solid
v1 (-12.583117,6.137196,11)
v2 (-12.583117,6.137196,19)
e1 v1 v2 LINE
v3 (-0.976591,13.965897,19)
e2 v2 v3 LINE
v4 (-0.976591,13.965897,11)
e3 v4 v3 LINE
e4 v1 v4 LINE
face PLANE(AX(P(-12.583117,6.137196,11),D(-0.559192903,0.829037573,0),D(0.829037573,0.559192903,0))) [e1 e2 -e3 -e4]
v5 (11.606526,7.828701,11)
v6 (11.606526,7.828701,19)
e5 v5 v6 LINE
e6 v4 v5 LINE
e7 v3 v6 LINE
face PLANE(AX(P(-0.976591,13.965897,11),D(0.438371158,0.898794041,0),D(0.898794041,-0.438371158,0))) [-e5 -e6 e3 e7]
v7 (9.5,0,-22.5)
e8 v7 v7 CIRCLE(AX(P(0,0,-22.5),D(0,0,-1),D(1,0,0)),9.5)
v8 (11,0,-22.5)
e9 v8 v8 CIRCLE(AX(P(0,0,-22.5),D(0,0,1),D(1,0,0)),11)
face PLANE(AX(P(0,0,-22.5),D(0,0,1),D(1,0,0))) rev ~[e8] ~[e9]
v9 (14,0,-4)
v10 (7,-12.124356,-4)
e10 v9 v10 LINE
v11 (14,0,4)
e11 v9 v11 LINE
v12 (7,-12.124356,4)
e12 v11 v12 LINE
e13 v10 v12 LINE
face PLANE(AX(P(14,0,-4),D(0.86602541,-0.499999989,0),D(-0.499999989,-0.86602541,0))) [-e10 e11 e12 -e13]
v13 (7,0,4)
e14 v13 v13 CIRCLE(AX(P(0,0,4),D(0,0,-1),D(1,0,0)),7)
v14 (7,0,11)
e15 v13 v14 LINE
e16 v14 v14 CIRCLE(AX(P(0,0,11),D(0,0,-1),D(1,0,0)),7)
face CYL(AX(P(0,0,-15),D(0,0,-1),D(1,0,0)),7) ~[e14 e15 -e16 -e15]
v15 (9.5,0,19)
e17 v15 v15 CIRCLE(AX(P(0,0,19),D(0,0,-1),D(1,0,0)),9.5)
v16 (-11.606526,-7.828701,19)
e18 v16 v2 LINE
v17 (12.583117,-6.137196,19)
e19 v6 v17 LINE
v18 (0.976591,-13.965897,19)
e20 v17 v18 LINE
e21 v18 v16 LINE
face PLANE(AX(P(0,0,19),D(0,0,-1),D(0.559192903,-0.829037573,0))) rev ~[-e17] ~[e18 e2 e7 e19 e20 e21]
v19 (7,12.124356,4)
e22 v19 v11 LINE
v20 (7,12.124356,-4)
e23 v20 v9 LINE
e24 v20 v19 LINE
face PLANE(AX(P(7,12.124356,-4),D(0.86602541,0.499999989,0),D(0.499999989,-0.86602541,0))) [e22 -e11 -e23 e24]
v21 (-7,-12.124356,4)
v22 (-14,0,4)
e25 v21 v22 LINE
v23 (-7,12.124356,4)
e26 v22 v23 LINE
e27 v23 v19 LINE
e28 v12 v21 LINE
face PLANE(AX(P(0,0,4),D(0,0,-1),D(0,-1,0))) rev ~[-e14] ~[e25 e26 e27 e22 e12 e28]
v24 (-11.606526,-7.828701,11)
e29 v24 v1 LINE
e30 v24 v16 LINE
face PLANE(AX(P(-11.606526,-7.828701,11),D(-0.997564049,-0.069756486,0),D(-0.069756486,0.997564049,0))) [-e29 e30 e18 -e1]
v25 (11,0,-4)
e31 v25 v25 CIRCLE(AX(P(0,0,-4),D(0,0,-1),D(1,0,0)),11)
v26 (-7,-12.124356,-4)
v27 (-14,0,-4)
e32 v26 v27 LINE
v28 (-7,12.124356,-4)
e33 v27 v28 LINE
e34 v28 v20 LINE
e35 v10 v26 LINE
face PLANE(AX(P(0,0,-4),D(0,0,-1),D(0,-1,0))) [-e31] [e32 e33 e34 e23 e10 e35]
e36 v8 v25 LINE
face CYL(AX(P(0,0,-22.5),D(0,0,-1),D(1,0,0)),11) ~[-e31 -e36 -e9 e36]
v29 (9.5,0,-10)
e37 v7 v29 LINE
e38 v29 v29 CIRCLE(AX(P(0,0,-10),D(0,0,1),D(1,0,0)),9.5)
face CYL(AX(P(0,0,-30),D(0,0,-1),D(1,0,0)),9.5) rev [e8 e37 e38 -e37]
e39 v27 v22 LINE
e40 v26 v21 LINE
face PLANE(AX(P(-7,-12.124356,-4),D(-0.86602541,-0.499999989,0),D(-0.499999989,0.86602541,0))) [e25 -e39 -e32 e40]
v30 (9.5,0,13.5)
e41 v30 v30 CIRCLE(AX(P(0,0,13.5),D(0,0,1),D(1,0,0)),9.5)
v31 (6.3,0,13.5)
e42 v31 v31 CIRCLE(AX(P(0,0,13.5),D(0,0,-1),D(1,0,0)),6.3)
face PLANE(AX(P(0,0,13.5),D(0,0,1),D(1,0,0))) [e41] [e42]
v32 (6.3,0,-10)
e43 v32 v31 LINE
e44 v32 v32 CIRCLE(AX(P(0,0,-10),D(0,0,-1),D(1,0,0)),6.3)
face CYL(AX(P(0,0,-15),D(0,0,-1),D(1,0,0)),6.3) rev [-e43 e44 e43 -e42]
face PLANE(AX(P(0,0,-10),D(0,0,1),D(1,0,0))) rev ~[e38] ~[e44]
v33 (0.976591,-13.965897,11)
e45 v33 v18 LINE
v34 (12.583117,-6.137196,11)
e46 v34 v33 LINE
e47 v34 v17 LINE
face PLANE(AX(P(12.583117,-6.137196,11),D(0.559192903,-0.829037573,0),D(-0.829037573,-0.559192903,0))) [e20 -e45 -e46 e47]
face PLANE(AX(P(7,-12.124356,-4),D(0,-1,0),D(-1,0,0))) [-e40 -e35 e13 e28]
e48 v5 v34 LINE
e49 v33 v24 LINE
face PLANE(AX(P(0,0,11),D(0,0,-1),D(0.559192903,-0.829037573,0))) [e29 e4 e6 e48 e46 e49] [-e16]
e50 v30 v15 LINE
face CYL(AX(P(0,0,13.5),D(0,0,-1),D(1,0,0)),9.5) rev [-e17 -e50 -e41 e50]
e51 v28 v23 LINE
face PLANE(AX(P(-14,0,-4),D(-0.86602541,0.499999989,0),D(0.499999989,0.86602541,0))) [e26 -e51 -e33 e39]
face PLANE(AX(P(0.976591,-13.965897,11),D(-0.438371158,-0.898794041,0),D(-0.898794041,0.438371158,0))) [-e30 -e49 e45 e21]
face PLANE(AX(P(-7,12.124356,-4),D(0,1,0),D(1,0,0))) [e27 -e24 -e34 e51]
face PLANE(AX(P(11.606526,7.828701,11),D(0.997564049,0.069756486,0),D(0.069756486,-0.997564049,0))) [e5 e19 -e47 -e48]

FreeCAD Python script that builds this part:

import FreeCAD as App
import Part
import Sketcher
Q = App.Units.Quantity

doc = App.newDocument("Part")
body = doc.addObject("PartDesign::Body", "Body")

# Sketch on XY plane
sketch1 = body.newObject("Sketcher::SketchObject", "Sketch")
sketch1.AttachmentSupport = (doc.getObject("XY_Plane"), [""])
sketch1.MapMode = "FlatFace"
sketch1.AttachmentOffset = App.Placement(App.Vector(0, 0, -15), App.Rotation())
sketch1.addGeometry(Part.Circle(App.Vector(0, 0, 0), App.Vector(0, 0, 1), 6.3), False)
sketch1.addConstraint(Sketcher.Constraint("Coincident", 0, 3, -1, 1))
sketch1.addConstraint(Sketcher.Constraint("Diameter", 0, Q("12.6 mm")))
pad1 = body.newObject("PartDesign::Pad", "Pad")
pad1.Profile = sketch1
pad1.Length = 50
body2 = doc.addObject("PartDesign::Body", "Body001")

# Sketch on XY plane
sketch2 = body2.newObject("Sketcher::SketchObject", "Sketch001")
sketch2.AttachmentSupport = (doc.getObject("XY_Plane001"), [""])
sketch2.MapMode = "FlatFace"
sketch2.AttachmentOffset = App.Placement(App.Vector(0, 0, 13.5), App.Rotation())
sketch2.addGeometry(Part.Circle(App.Vector(0, 0, 0), App.Vector(0, 0, 1), 9.5), False)
sketch2.addConstraint(Sketcher.Constraint("Coincident", 0, 3, -1, 1))
sketch2.addConstraint(Sketcher.Constraint("Diameter", 0, Q("19 mm")))
pad2 = body2.newObject("PartDesign::Pad", "Pad001")
pad2.Profile = sketch2
pad2.Length = 13
body3 = doc.addObject("PartDesign::Body", "Body002")

# Sketch on XY plane
sketch3 = body3.newObject("Sketcher::SketchObject", "Sketch002")
sketch3.AttachmentSupport = (doc.getObject("XY_Plane002"), [""])
sketch3.MapMode = "FlatFace"
sketch3.AttachmentOffset = App.Placement(App.Vector(0, 0, -30), App.Rotation())
sketch3.addGeometry(Part.Circle(App.Vector(0, 0, 0), App.Vector(0, 0, 1), 9.5), False)
sketch3.addConstraint(Sketcher.Constraint("Coincident", 0, 3, -1, 1))
sketch3.addConstraint(Sketcher.Constraint("Diameter", 0, Q("19 mm")))
pad3 = body3.newObject("PartDesign::Pad", "Pad002")
pad3.Profile = sketch3
pad3.Length = 20
doc.recompute()

boolean = body3.newObject("PartDesign::Boolean", "Boolean")
boolean.Type = "Fuse"
boolean.addObjects([body])
doc.recompute()

boolean2 = body3.newObject("PartDesign::Boolean", "Boolean001")
boolean2.Type = "Fuse"
boolean2.addObjects([body2])
body4 = doc.addObject("PartDesign::Body", "Body003")

# Sketch on XY plane
sketch4 = body4.newObject("Sketcher::SketchObject", "Sketch003")
sketch4.AttachmentSupport = (doc.getObject("XY_Plane003"), [""])
sketch4.MapMode = "FlatFace"
sketch4.AttachmentOffset = App.Placement(App.Vector(0, 0, -15), App.Rotation())
sketch4.addGeometry(Part.Circle(App.Vector(0, 0, 0), App.Vector(0, 0, 1), 7), False)
sketch4.addConstraint(Sketcher.Constraint("Coincident", 0, 3, -1, 1))
sketch4.addConstraint(Sketcher.Constraint("Diameter", 0, Q("14 mm")))
pad4 = body4.newObject("PartDesign::Pad", "Pad003")
pad4.Profile = sketch4
pad4.Length = 30
body5 = doc.addObject("PartDesign::Body", "Body004")

# Sketch on XY plane
sketch5 = body5.newObject("Sketcher::SketchObject", "Sketch004")
sketch5.AttachmentSupport = (doc.getObject("XY_Plane004"), [""])
sketch5.MapMode = "FlatFace"
sketch5.addGeometry(Part.LineSegment(App.Vector(7, 12.124356, 0), App.Vector(14, 0, 0)), False)
sketch5.addGeometry(Part.LineSegment(App.Vector(14, 0, 0), App.Vector(7, -12.124356, 0)), False)
sketch5.addGeometry(Part.LineSegment(App.Vector(7, -12.124356, 0), App.Vector(-7, -12.124356, 0)), False)
sketch5.addGeometry(Part.LineSegment(App.Vector(-7, -12.124356, 0), App.Vector(-14, 0, 0)), False)
sketch5.addGeometry(Part.LineSegment(App.Vector(-14, 0, 0), App.Vector(-7, 12.124356, 0)), False)
sketch5.addGeometry(Part.LineSegment(App.Vector(-7, 12.124356, 0), App.Vector(7, 12.124356, 0)), False)
sketch5.addConstraint(Sketcher.Constraint("Coincident", 0, 2, 1, 1))
sketch5.addConstraint(Sketcher.Constraint("Coincident", 1, 2, 2, 1))
sketch5.addConstraint(Sketcher.Constraint("Coincident", 2, 2, 3, 1))
sketch5.addConstraint(Sketcher.Constraint("Coincident", 3, 2, 4, 1))
sketch5.addConstraint(Sketcher.Constraint("Coincident", 4, 2, 5, 1))
sketch5.addConstraint(Sketcher.Constraint("Coincident", 5, 2, 0, 1))
sketch5.addConstraint(Sketcher.Constraint("Horizontal", 2))
sketch5.addConstraint(Sketcher.Constraint("Horizontal", 5))
sketch5.addConstraint(Sketcher.Constraint("Symmetric", 0, 2, 3, 2, -1, 1))
sketch5.addConstraint(Sketcher.Constraint("Symmetric", 1, 2, 4, 2, -1, 1))
sketch5.addConstraint(Sketcher.Constraint("PointOnObject", 0, 2, -1))
sketch5.addConstraint(Sketcher.Constraint("Parallel", 0, 3))
sketch5.addConstraint(Sketcher.Constraint("Vertical", 2, 2, 4, 2))
sketch5.addConstraint(Sketcher.Constraint("DistanceX", 2, 2, 2, 1, Q("14 mm")))
sketch5.addConstraint(Sketcher.Constraint("Angle", 0, Q("-60.000001 deg")))
sketch5.addConstraint(Sketcher.Constraint("Distance", 0, Q("14 mm")))
pad5 = body5.newObject("PartDesign::Pad", "Pad004")
pad5.Profile = sketch5
pad5.Length = 8
body6 = doc.addObject("PartDesign::Body", "Body005")
doc.recompute()

body5.Placement = App.Placement(App.Vector(0, 0, -4), App.Rotation(App.Vector(0, 0, 1), 0))
boolean3 = body6.newObject("PartDesign::Boolean", "Boolean002")
boolean3.Type = "Fuse"
boolean3.addObjects([body5])
body7 = doc.addObject("PartDesign::Body", "Body006")

# Sketch on XY plane
sketch6 = body7.newObject("Sketcher::SketchObject", "Sketch005")
sketch6.AttachmentSupport = (doc.getObject("XY_Plane006"), [""])
sketch6.MapMode = "FlatFace"
sketch6.addGeometry(Part.LineSegment(App.Vector(7, 12.124356, 0), App.Vector(14, 0, 0)), False)
sketch6.addGeometry(Part.LineSegment(App.Vector(14, 0, 0), App.Vector(7, -12.124356, 0)), False)
sketch6.addGeometry(Part.LineSegment(App.Vector(7, -12.124356, 0), App.Vector(-7, -12.124356, 0)), False)
sketch6.addGeometry(Part.LineSegment(App.Vector(-7, -12.124356, 0), App.Vector(-14, 0, 0)), False)
sketch6.addGeometry(Part.LineSegment(App.Vector(-14, 0, 0), App.Vector(-7, 12.124356, 0)), False)
sketch6.addGeometry(Part.LineSegment(App.Vector(-7, 12.124356, 0), App.Vector(7, 12.124356, 0)), False)
sketch6.addConstraint(Sketcher.Constraint("Coincident", 0, 2, 1, 1))
sketch6.addConstraint(Sketcher.Constraint("Coincident", 1, 2, 2, 1))
sketch6.addConstraint(Sketcher.Constraint("Coincident", 2, 2, 3, 1))
sketch6.addConstraint(Sketcher.Constraint("Coincident", 3, 2, 4, 1))
sketch6.addConstraint(Sketcher.Constraint("Coincident", 4, 2, 5, 1))
sketch6.addConstraint(Sketcher.Constraint("Coincident", 5, 2, 0, 1))
sketch6.addConstraint(Sketcher.Constraint("Horizontal", 2))
sketch6.addConstraint(Sketcher.Constraint("Horizontal", 5))
sketch6.addConstraint(Sketcher.Constraint("Symmetric", 0, 2, 3, 2, -1, 1))
sketch6.addConstraint(Sketcher.Constraint("Symmetric", 1, 2, 4, 2, -1, 1))
sketch6.addConstraint(Sketcher.Constraint("PointOnObject", 0, 2, -1))
sketch6.addConstraint(Sketcher.Constraint("Parallel", 0, 3))
sketch6.addConstraint(Sketcher.Constraint("Vertical", 2, 2, 4, 2))
sketch6.addConstraint(Sketcher.Constraint("DistanceX", 2, 2, 2, 1, Q("14 mm")))
sketch6.addConstraint(Sketcher.Constraint("Angle", 0, Q("-60.000001 deg")))
sketch6.addConstraint(Sketcher.Constraint("Distance", 0, Q("14 mm")))
pad6 = body7.newObject("PartDesign::Pad", "Pad005")
pad6.Profile = sketch6
pad6.Length = 8
body8 = doc.addObject("PartDesign::Body", "Body007")
doc.recompute()

body7.Placement = App.Placement(App.Vector(0, 0, 11), App.Rotation(App.Vector(0, 0, 1), 34))
boolean4 = body8.newObject("PartDesign::Boolean", "Boolean003")
boolean4.Type = "Fuse"
boolean4.addObjects([body7])
body9 = doc.addObject("PartDesign::Body", "Body008")

# Sketch on XY plane
sketch7 = body9.newObject("Sketcher::SketchObject", "Sketch006")
sketch7.AttachmentSupport = (doc.getObject("XY_Plane008"), [""])
sketch7.MapMode = "FlatFace"
sketch7.AttachmentOffset = App.Placement(App.Vector(0, 0, -22.5), App.Rotation())
sketch7.addGeometry(Part.Circle(App.Vector(0, 0, 0), App.Vector(0, 0, 1), 11), False)
sketch7.addConstraint(Sketcher.Constraint("Coincident", 0, 3, -1, 1))
sketch7.addConstraint(Sketcher.Constraint("Diameter", 0, Q("22 mm")))
pad7 = body9.newObject("PartDesign::Pad", "Pad006")
pad7.Profile = sketch7
pad7.Length = 25
doc.recompute()

boolean5 = body9.newObject("PartDesign::Boolean", "Boolean004")
boolean5.Type = "Fuse"
boolean5.addObjects([body4])
doc.recompute()

boolean6 = body9.newObject("PartDesign::Boolean", "Boolean005")
boolean6.Type = "Fuse"
boolean6.addObjects([body6])
doc.recompute()

boolean7 = body9.newObject("PartDesign::Boolean", "Boolean006")
boolean7.Type = "Fuse"
boolean7.addObjects([body8])
doc.recompute()

boolean8 = body9.newObject("PartDesign::Boolean", "Boolean007")
boolean8.Type = "Cut"
boolean8.addObjects([body3])
body10 = doc.addObject("PartDesign::Body", "Body009")

# Sketch on XY plane
sketch8 = body10.newObject("Sketcher::SketchObject", "Sketch007")
sketch8.AttachmentSupport = (doc.getObject("XY_Plane009"), [""])
sketch8.MapMode = "FlatFace"
sketch8.AttachmentOffset = App.Placement(App.Vector(0, 0, -15), App.Rotation())
sketch8.addGeometry(Part.Circle(App.Vector(0, 0, 0), App.Vector(0, 0, 1), 6.3), False)
sketch8.addConstraint(Sketcher.Constraint("Coincident", 0, 3, -1, 1))
sketch8.addConstraint(Sketcher.Constraint("Diameter", 0, Q("12.6 mm")))
pad8 = body10.newObject("PartDesign::Pad", "Pad007")
pad8.Profile = sketch8
pad8.Length = 50
body11 = doc.addObject("PartDesign::Body", "Body010")

# Sketch on XY plane
sketch9 = body11.newObject("Sketcher::SketchObject", "Sketch008")
sketch9.AttachmentSupport = (doc.getObject("XY_Plane010"), [""])
sketch9.MapMode = "FlatFace"
sketch9.AttachmentOffset = App.Placement(App.Vector(0, 0, 13.5), App.Rotation())
sketch9.addGeometry(Part.Circle(App.Vector(0, 0, 0), App.Vector(0, 0, 1), 9.5), False)
sketch9.addConstraint(Sketcher.Constraint("Coincident", 0, 3, -1, 1))
sketch9.addConstraint(Sketcher.Constraint("Diameter", 0, Q("19 mm")))
pad9 = body11.newObject("PartDesign::Pad", "Pad008")
pad9.Profile = sketch9
pad9.Length = 13
body12 = doc.addObject("PartDesign::Body", "Body011")

# Sketch on XY plane
sketch10 = body12.newObject("Sketcher::SketchObject", "Sketch009")
sketch10.AttachmentSupport = (doc.getObject("XY_Plane011"), [""])
sketch10.MapMode = "FlatFace"
sketch10.AttachmentOffset = App.Placement(App.Vector(0, 0, -30), App.Rotation())
sketch10.addGeometry(Part.Circle(App.Vector(0, 0, 0), App.Vector(0, 0, 1), 9.5), False)
sketch10.addConstraint(Sketcher.Constraint("Coincident", 0, 3, -1, 1))
sketch10.addConstraint(Sketcher.Constraint("Diameter", 0, Q("19 mm")))
pad10 = body12.newObject("PartDesign::Pad", "Pad009")
pad10.Profile = sketch10
pad10.Length = 20
doc.recompute()

boolean9 = body12.newObject("PartDesign::Boolean", "Boolean008")
boolean9.Type = "Fuse"
boolean9.addObjects([body10])
doc.recompute()

boolean10 = body12.newObject("PartDesign::Boolean", "Boolean009")
boolean10.Type = "Fuse"
boolean10.addObjects([body11])
body13 = doc.addObject("PartDesign::Body", "Body012")

# Sketch on XY plane
sketch11 = body13.newObject("Sketcher::SketchObject", "Sketch010")
sketch11.AttachmentSupport = (doc.getObject("XY_Plane012"), [""])
sketch11.MapMode = "FlatFace"
sketch11.AttachmentOffset = App.Placement(App.Vector(0, 0, -15), App.Rotation())
sketch11.addGeometry(Part.Circle(App.Vector(0, 0, 0), App.Vector(0, 0, 1), 7), False)
sketch11.addConstraint(Sketcher.Constraint("Coincident", 0, 3, -1, 1))
sketch11.addConstraint(Sketcher.Constraint("Diameter", 0, Q("14 mm")))
pad11 = body13.newObject("PartDesign::Pad", "Pad010")
pad11.Profile = sketch11
pad11.Length = 30
body14 = doc.addObject("PartDesign::Body", "Body013")

# Sketch on XY plane
sketch12 = body14.newObject("Sketcher::SketchObject", "Sketch011")
sketch12.AttachmentSupport = (doc.getObject("XY_Plane013"), [""])
sketch12.MapMode = "FlatFace"
sketch12.addGeometry(Part.LineSegment(App.Vector(7, 12.124356, 0), App.Vector(14, 0, 0)), False)
sketch12.addGeometry(Part.LineSegment(App.Vector(14, 0, 0), App.Vector(7, -12.124356, 0)), False)
sketch12.addGeometry(Part.LineSegment(App.Vector(7, -12.124356, 0), App.Vector(-7, -12.124356, 0)), False)
sketch12.addGeometry(Part.LineSegment(App.Vector(-7, -12.124356, 0), App.Vector(-14, 0, 0)), False)
sketch12.addGeometry(Part.LineSegment(App.Vector(-14, 0, 0), App.Vector(-7, 12.124356, 0)), False)
sketch12.addGeometry(Part.LineSegment(App.Vector(-7, 12.124356, 0), App.Vector(7, 12.124356, 0)), False)
sketch12.addConstraint(Sketcher.Constraint("Coincident", 0, 2, 1, 1))
sketch12.addConstraint(Sketcher.Constraint("Coincident", 1, 2, 2, 1))
sketch12.addConstraint(Sketcher.Constraint("Coincident", 2, 2, 3, 1))
sketch12.addConstraint(Sketcher.Constraint("Coincident", 3, 2, 4, 1))
sketch12.addConstraint(Sketcher.Constraint("Coincident", 4, 2, 5, 1))
sketch12.addConstraint(Sketcher.Constraint("Coincident", 5, 2, 0, 1))
sketch12.addConstraint(Sketcher.Constraint("Horizontal", 2))
sketch12.addConstraint(Sketcher.Constraint("Horizontal", 5))
sketch12.addConstraint(Sketcher.Constraint("Symmetric", 0, 2, 3, 2, -1, 1))
sketch12.addConstraint(Sketcher.Constraint("Symmetric", 1, 2, 4, 2, -1, 1))
sketch12.addConstraint(Sketcher.Constraint("PointOnObject", 0, 2, -1))
sketch12.addConstraint(Sketcher.Constraint("Parallel", 0, 3))
sketch12.addConstraint(Sketcher.Constraint("Vertical", 2, 2, 4, 2))
sketch12.addConstraint(Sketcher.Constraint("DistanceX", 2, 2, 2, 1, Q("14 mm")))
sketch12.addConstraint(Sketcher.Constraint("Angle", 0, Q("-60.000001 deg")))
sketch12.addConstraint(Sketcher.Constraint("Distance", 0, Q("14 mm")))
pad12 = body14.newObject("PartDesign::Pad", "Pad011")
pad12.Profile = sketch12
pad12.Length = 8
body15 = doc.addObject("PartDesign::Body", "Body014")
doc.recompute()

body14.Placement = App.Placement(App.Vector(0, 0, -4), App.Rotation(App.Vector(0, 0, 1), 0))
boolean11 = body15.newObject("PartDesign::Boolean", "Boolean010")
boolean11.Type = "Fuse"
boolean11.addObjects([body14])
body16 = doc.addObject("PartDesign::Body", "Body015")

# Sketch on XY plane
sketch13 = body16.newObject("Sketcher::SketchObject", "Sketch012")
sketch13.AttachmentSupport = (doc.getObject("XY_Plane015"), [""])
sketch13.MapMode = "FlatFace"
sketch13.addGeometry(Part.LineSegment(App.Vector(7, 12.124356, 0), App.Vector(14, 0, 0)), False)
sketch13.addGeometry(Part.LineSegment(App.Vector(14, 0, 0), App.Vector(7, -12.124356, 0)), False)
sketch13.addGeometry(Part.LineSegment(App.Vector(7, -12.124356, 0), App.Vector(-7, -12.124356, 0)), False)
sketch13.addGeometry(Part.LineSegment(App.Vector(-7, -12.124356, 0), App.Vector(-14, 0, 0)), False)
sketch13.addGeometry(Part.LineSegment(App.Vector(-14, 0, 0), App.Vector(-7, 12.124356, 0)), False)
sketch13.addGeometry(Part.LineSegment(App.Vector(-7, 12.124356, 0), App.Vector(7, 12.124356, 0)), False)
sketch13.addConstraint(Sketcher.Constraint("Coincident", 0, 2, 1, 1))
sketch13.addConstraint(Sketcher.Constraint("Coincident", 1, 2, 2, 1))
sketch13.addConstraint(Sketcher.Constraint("Coincident", 2, 2, 3, 1))
sketch13.addConstraint(Sketcher.Constraint("Coincident", 3, 2, 4, 1))
sketch13.addConstraint(Sketcher.Constraint("Coincident", 4, 2, 5, 1))
sketch13.addConstraint(Sketcher.Constraint("Coincident", 5, 2, 0, 1))
sketch13.addConstraint(Sketcher.Constraint("Horizontal", 2))
sketch13.addConstraint(Sketcher.Constraint("Horizontal", 5))
sketch13.addConstraint(Sketcher.Constraint("Symmetric", 0, 2, 3, 2, -1, 1))
sketch13.addConstraint(Sketcher.Constraint("Symmetric", 1, 2, 4, 2, -1, 1))
sketch13.addConstraint(Sketcher.Constraint("PointOnObject", 0, 2, -1))
sketch13.addConstraint(Sketcher.Constraint("Parallel", 0, 3))
sketch13.addConstraint(Sketcher.Constraint("Vertical", 2, 2, 4, 2))
sketch13.addConstraint(Sketcher.Constraint("DistanceX", 2, 2, 2, 1, Q("14 mm")))
sketch13.addConstraint(Sketcher.Constraint("Angle", 0, Q("-60.000001 deg")))
sketch13.addConstraint(Sketcher.Constraint("Distance", 0, Q("14 mm")))
pad13 = body16.newObject("PartDesign::Pad", "Pad012")
pad13.Profile = sketch13
pad13.Length = 8
body17 = doc.addObject("PartDesign::Body", "Body016")
doc.recompute()

body16.Placement = App.Placement(App.Vector(0, 0, 11), App.Rotation(App.Vector(0, 0, 1), 34))
boolean12 = body17.newObject("PartDesign::Boolean", "Boolean011")
boolean12.Type = "Fuse"
boolean12.addObjects([body16])
body18 = doc.addObject("PartDesign::Body", "Body017")

# Sketch on XY plane
sketch14 = body18.newObject("Sketcher::SketchObject", "Sketch013")
sketch14.AttachmentSupport = (doc.getObject("XY_Plane017"), [""])
sketch14.MapMode = "FlatFace"
sketch14.AttachmentOffset = App.Placement(App.Vector(0, 0, -22.5), App.Rotation())
sketch14.addGeometry(Part.Circle(App.Vector(0, 0, 0), App.Vector(0, 0, 1), 11), False)
sketch14.addConstraint(Sketcher.Constraint("Coincident", 0, 3, -1, 1))
sketch14.addConstraint(Sketcher.Constraint("Diameter", 0, Q("22 mm")))
pad14 = body18.newObject("PartDesign::Pad", "Pad013")
pad14.Profile = sketch14
pad14.Length = 25
doc.recompute()

boolean13 = body18.newObject("PartDesign::Boolean", "Boolean012")
boolean13.Type = "Fuse"
boolean13.addObjects([body13])
doc.recompute()

boolean14 = body18.newObject("PartDesign::Boolean", "Boolean013")
boolean14.Type = "Fuse"
boolean14.addObjects([body15])
doc.recompute()

boolean15 = body18.newObject("PartDesign::Boolean", "Boolean014")
boolean15.Type = "Fuse"
boolean15.addObjects([body17])
doc.recompute()

boolean16 = body18.newObject("PartDesign::Boolean", "Boolean015")
boolean16.Type = "Cut"
boolean16.addObjects([body12])
doc.recompute()

boolean17 = body18.newObject("PartDesign::Boolean", "Boolean016")
boolean17.Type = "Fuse"
boolean17.addObjects([body9])

doc.recompute()
